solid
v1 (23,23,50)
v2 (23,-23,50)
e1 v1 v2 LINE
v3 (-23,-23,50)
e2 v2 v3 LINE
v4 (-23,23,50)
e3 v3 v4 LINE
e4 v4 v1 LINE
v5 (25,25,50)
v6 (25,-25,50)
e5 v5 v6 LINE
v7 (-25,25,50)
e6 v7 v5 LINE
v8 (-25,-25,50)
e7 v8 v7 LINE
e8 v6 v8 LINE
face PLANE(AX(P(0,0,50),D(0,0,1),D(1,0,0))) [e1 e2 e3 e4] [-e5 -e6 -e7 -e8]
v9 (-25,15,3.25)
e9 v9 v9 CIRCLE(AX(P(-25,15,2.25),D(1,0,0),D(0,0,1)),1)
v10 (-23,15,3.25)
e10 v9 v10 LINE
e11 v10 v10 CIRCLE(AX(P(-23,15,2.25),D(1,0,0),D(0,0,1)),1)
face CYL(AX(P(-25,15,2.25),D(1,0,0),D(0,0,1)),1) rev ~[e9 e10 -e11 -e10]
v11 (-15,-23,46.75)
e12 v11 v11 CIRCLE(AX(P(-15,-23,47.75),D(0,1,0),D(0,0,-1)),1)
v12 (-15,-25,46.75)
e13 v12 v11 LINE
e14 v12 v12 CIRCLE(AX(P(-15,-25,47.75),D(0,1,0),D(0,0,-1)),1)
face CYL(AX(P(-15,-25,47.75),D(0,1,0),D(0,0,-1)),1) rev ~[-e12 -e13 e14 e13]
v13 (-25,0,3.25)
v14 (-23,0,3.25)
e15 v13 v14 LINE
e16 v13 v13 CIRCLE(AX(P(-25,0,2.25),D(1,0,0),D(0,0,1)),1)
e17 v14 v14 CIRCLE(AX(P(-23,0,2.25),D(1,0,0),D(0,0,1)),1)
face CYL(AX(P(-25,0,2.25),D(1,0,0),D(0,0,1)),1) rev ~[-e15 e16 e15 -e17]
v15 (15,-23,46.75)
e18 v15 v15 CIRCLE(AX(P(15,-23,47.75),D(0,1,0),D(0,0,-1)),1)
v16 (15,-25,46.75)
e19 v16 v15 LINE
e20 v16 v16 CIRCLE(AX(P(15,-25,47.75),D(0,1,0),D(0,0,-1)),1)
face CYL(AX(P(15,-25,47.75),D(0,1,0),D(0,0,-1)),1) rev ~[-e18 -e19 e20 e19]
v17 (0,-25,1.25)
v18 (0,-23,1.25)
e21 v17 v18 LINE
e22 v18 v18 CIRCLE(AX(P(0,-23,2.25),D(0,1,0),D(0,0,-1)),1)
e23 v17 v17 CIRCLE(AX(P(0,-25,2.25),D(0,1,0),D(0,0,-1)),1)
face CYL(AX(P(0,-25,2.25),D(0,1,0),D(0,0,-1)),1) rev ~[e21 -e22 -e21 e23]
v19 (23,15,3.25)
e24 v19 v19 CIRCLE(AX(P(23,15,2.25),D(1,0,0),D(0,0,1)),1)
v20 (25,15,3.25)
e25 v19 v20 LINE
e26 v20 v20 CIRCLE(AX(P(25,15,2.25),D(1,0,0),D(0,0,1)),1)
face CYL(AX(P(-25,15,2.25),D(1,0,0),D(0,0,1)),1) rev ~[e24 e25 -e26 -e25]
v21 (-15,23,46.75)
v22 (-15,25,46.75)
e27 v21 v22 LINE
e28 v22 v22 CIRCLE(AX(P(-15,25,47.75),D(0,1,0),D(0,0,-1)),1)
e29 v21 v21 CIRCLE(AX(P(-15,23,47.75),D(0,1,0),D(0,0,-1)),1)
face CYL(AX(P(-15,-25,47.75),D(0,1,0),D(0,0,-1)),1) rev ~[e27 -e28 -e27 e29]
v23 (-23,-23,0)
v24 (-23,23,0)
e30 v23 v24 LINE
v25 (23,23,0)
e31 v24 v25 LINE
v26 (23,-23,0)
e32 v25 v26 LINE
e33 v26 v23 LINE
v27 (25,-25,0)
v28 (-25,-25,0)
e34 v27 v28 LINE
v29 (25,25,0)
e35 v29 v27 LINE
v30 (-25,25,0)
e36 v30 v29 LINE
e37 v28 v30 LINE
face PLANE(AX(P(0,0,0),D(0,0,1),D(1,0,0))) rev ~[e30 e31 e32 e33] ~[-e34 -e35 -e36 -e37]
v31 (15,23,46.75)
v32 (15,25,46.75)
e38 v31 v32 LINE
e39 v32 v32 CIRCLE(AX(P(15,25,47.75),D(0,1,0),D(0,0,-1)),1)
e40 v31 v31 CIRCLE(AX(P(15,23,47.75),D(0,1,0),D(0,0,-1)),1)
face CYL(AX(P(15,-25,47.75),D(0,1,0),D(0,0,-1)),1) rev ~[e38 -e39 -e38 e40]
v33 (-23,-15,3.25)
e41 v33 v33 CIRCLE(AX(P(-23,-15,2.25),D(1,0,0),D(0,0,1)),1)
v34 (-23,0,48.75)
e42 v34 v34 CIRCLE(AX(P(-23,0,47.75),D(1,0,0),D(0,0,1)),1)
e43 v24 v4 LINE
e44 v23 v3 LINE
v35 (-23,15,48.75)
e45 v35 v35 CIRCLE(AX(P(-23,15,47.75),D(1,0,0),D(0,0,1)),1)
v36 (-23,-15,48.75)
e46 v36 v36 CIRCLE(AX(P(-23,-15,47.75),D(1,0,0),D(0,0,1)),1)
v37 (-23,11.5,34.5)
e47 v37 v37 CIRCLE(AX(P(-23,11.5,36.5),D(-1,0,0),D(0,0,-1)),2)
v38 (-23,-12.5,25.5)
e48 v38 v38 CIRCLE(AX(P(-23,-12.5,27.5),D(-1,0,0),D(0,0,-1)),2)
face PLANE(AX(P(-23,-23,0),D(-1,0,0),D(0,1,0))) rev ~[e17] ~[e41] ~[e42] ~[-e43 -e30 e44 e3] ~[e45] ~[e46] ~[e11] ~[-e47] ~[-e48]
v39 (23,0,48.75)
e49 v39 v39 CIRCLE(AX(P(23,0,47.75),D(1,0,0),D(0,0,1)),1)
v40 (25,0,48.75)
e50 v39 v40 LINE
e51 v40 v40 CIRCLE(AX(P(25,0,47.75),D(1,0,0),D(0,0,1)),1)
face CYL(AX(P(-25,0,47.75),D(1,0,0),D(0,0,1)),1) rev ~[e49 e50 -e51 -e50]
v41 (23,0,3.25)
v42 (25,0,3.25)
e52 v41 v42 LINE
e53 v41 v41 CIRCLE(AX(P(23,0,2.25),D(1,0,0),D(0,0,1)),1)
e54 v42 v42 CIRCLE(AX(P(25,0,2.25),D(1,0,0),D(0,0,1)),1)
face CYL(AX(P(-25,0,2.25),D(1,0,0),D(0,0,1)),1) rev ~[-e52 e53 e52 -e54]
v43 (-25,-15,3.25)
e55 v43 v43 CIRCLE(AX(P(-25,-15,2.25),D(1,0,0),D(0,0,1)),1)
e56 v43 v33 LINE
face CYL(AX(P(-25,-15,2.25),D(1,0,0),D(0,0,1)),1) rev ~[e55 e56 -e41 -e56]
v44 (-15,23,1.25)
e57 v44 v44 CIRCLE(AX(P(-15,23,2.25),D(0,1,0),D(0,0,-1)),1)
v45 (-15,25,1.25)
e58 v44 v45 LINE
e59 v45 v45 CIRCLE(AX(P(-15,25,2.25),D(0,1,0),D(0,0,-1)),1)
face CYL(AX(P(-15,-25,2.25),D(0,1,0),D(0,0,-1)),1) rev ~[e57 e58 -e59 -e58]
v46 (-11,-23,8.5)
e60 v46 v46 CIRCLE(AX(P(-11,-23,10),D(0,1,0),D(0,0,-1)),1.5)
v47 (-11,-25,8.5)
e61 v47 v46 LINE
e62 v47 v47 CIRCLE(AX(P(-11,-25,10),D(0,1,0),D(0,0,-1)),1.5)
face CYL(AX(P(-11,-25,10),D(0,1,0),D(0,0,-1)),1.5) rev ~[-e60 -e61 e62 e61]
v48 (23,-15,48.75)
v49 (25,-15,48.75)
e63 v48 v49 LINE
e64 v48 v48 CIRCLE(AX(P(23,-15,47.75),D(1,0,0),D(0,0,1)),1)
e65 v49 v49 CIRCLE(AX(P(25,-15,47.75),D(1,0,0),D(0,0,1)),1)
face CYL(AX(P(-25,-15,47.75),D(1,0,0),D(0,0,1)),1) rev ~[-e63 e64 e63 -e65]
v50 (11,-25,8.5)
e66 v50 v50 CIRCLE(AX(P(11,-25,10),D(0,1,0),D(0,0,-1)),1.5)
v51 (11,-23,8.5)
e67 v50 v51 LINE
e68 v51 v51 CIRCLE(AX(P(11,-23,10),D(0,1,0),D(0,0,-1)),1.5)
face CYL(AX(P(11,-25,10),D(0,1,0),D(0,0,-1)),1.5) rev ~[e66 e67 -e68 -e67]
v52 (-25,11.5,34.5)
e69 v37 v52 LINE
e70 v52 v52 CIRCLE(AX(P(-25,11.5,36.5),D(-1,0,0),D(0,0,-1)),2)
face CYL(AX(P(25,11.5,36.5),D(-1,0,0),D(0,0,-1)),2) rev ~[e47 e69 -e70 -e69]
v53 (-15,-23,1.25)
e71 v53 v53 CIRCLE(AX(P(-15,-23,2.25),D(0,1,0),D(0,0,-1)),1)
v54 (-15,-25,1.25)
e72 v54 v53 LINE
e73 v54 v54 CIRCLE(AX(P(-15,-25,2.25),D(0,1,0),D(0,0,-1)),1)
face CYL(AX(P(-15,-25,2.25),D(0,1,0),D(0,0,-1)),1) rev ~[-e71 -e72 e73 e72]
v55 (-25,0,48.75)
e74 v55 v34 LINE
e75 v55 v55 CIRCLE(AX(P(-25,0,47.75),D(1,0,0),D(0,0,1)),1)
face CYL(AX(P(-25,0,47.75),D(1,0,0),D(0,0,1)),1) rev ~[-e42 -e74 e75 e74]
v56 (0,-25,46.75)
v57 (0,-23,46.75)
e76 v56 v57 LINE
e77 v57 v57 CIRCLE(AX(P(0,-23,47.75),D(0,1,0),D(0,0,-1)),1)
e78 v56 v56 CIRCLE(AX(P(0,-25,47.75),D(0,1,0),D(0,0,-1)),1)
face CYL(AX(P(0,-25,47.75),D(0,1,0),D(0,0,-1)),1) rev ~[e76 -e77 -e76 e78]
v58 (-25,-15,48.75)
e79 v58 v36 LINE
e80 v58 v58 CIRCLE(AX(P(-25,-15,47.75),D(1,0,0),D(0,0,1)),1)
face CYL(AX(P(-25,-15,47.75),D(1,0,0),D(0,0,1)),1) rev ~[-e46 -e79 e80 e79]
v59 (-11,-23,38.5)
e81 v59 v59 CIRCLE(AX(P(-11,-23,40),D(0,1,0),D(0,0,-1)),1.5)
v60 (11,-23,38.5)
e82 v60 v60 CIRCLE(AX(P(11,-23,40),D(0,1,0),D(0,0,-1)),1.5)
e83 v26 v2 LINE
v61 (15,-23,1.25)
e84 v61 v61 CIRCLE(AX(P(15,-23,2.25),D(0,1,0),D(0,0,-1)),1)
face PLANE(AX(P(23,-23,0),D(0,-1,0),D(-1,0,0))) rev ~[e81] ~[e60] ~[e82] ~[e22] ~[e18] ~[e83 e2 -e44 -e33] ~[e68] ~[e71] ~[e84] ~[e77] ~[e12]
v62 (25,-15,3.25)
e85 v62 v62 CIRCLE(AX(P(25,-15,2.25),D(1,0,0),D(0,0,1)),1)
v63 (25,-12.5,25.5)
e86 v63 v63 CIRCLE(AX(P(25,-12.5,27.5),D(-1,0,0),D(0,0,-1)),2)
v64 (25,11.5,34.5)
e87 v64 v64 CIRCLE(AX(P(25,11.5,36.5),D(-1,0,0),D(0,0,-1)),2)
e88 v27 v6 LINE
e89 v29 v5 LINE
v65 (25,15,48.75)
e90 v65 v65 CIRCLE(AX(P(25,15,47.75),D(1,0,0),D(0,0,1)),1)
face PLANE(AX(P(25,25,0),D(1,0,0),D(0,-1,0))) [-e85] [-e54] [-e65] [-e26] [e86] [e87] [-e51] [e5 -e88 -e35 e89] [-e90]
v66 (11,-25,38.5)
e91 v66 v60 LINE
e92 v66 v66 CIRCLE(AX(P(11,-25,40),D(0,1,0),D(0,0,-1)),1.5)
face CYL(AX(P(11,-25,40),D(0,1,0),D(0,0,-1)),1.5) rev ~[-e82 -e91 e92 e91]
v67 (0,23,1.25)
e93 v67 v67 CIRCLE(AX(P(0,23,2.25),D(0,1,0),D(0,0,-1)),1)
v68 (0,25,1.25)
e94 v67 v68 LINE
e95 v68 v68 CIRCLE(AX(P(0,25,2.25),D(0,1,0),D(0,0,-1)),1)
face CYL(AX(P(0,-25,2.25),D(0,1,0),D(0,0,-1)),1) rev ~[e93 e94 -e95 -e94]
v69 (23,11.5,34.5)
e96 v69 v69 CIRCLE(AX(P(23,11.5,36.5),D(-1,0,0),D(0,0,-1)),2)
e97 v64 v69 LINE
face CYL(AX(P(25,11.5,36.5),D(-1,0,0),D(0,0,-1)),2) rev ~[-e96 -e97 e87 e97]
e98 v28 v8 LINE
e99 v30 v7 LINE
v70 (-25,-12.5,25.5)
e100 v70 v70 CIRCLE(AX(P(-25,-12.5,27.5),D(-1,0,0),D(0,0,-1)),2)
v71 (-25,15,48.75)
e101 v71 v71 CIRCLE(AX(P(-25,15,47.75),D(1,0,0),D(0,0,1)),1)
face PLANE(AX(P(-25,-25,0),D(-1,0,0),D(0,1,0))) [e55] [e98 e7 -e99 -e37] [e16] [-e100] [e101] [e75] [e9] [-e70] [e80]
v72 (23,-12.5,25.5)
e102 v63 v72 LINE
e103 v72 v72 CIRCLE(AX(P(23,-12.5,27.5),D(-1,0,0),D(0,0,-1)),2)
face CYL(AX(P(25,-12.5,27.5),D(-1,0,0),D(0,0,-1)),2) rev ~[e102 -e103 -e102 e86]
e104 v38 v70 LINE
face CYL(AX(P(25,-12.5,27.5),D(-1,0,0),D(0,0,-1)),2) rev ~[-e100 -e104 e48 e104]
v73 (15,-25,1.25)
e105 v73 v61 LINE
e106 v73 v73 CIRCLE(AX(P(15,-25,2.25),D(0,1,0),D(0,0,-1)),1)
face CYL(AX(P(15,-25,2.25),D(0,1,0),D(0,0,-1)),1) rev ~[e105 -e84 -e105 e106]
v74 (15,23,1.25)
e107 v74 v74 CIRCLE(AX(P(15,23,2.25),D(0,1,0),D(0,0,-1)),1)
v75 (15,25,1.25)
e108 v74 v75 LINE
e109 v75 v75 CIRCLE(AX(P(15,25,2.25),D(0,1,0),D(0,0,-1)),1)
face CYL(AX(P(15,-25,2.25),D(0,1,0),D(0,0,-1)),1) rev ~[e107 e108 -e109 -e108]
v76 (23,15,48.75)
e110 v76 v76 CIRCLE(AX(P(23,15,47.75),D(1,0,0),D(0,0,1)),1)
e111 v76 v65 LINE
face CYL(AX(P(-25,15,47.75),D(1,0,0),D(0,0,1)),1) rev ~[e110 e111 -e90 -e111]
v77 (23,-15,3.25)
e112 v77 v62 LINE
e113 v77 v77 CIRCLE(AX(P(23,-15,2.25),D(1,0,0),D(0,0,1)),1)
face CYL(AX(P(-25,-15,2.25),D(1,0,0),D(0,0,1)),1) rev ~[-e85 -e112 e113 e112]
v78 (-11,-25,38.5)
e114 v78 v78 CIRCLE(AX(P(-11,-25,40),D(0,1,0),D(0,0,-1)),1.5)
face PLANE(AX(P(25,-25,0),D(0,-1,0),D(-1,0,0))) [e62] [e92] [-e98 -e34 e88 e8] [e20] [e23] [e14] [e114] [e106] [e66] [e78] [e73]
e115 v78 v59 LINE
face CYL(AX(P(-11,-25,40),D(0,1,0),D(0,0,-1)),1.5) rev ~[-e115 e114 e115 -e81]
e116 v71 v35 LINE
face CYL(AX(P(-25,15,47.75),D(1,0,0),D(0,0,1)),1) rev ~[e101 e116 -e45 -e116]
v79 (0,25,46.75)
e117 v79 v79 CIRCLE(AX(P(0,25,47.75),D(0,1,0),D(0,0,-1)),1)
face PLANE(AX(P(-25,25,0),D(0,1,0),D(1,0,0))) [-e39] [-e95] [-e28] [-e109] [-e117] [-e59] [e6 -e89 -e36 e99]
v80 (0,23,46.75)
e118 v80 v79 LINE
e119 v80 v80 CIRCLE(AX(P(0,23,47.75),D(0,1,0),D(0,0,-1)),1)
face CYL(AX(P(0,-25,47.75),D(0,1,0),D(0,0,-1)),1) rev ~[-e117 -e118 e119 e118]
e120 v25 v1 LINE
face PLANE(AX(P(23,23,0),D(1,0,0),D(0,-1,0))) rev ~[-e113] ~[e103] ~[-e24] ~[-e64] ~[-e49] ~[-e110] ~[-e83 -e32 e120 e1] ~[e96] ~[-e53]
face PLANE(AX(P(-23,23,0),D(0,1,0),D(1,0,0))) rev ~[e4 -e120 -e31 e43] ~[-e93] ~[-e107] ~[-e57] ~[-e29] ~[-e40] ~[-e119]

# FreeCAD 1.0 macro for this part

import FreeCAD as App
import Part
import Sketcher
from FreeCAD import Vector


def add_polygon(sketch, points):
    """Adds a closed chain of lines whose ends are joined by coincident constraints."""
    first, n = sketch.GeometryCount, len(points)
    for a, b in zip(points, points[1:] + points[:1]):
        sketch.addGeometry(Part.LineSegment(App.Vector(*a, 0), App.Vector(*b, 0)), False)
    for i in range(n):
        sketch.addConstraint(Sketcher.Constraint("Coincident", first + i, 2, first + (i + 1) % n, 1))

doc = App.newDocument("Part")
body = doc.addObject("PartDesign::Body", "Body")

sketch1 = body.newObject("Sketcher::SketchObject", "Sketch")
sketch1.AttachmentSupport = (doc.getObject("XY_Plane"), [""])
sketch1.MapMode = "FlatFace"
add_polygon(sketch1, [(25, 25), (-25, 25), (-25, -25), (25, -25)])
add_polygon(sketch1, [(-23, -23), (-23, 23), (23, 23), (23, -23)])
sketch1.addConstraint(Sketcher.Constraint("Horizontal", 0))
sketch1.addConstraint(Sketcher.Constraint("Vertical", 1))
sketch1.addConstraint(Sketcher.Constraint("Horizontal", 2))
sketch1.addConstraint(Sketcher.Constraint("Vertical", 3))
sketch1.addConstraint(Sketcher.Constraint("Vertical", 4))
sketch1.addConstraint(Sketcher.Constraint("Horizontal", 5))
sketch1.addConstraint(Sketcher.Constraint("Vertical", 6))
sketch1.addConstraint(Sketcher.Constraint("Horizontal", 7))
sketch1.addConstraint(Sketcher.Constraint("Symmetric", 0, 2, 2, 2, -1, 1))
sketch1.addConstraint(Sketcher.Constraint("Symmetric", 4, 2, 6, 2, -1, 1))
sketch1.addConstraint(Sketcher.Constraint("Equal", 2, 1))
sketch1.addConstraint(Sketcher.Constraint("Equal", 7, 4))
sketch1.addConstraint(Sketcher.Constraint("DistanceX", 0, 2, 0, 1, 50.0))
sketch1.addConstraint(Sketcher.Constraint("DistanceX", 5, 1, 5, 2, 46.0))
pad1 = body.newObject("PartDesign::Pad", "Pad")
pad1.Profile = sketch1
pad1.Length = 50

sketch2 = body.newObject("Sketcher::SketchObject", "Sketch001")
sketch2.AttachmentSupport = (doc.getObject("YZ_Plane"), [""])
sketch2.MapMode = "FlatFace"
sketch2.AttachmentOffset = App.Placement(Vector(0, 0, 25), App.Rotation())
sketch2.addGeometry(Part.Circle(Vector(-12.5, 27.5, 0), Vector(0, 0, 1), 2), False)
sketch2.addGeometry(Part.Circle(Vector(11.5, 36.5, 0), Vector(0, 0, 1), 2), False)
sketch2.addConstraint(Sketcher.Constraint("Equal", 0, 1))
sketch2.addConstraint(Sketcher.Constraint("Diameter", 0, 4.0))
sketch2.addConstraint(Sketcher.Constraint("DistanceX", 0, 3, 1, 3, 24.0))
sketch2.addConstraint(Sketcher.Constraint("DistanceY", 0, 3, 1, 3, 9.0))
sketch2.addConstraint(Sketcher.Constraint("DistanceX", 0, 3, -1, 1, 12.5))
sketch2.addConstraint(Sketcher.Constraint("DistanceY", -1, 1, 0, 3, 27.5))
doc.recompute()
hole = body.newObject("PartDesign::Hole", "Hole")
hole.Profile = sketch2
hole.ThreadType = "None"
hole.Diameter = 4
hole.DepthType = "ThroughAll"

sketch3 = body.newObject("Sketcher::SketchObject", "Sketch002")
sketch3.AttachmentSupport = (doc.getObject("XZ_Plane"), [""])
sketch3.MapMode = "FlatFace"
sketch3.AttachmentOffset = App.Placement(Vector(0, 0, 25), App.Rotation())
sketch3.addGeometry(Part.Circle(Vector(-15, 47.8, 0), Vector(0, 0, 1), 1), False)
sketch3.addGeometry(Part.Circle(Vector(-15, 2.2, 0), Vector(0, 0, 1), 1), False)
sketch3.addGeometry(Part.Circle(Vector(0, 47.8, 0), Vector(0, 0, 1), 1), False)
sketch3.addGeometry(Part.Circle(Vector(0, 2.2, 0), Vector(0, 0, 1), 1), False)
sketch3.addGeometry(Part.Circle(Vector(15, 2.2, 0), Vector(0, 0, 1), 1), False)
sketch3.addGeometry(Part.Circle(Vector(15, 47.8, 0), Vector(0, 0, 1), 1), False)
sketch3.addConstraint(Sketcher.Constraint("Equal", 0, 1))
sketch3.addConstraint(Sketcher.Constraint("Equal", 1, 2))
sketch3.addConstraint(Sketcher.Constraint("Equal", 2, 3))
sketch3.addConstraint(Sketcher.Constraint("Equal", 3, 4))
sketch3.addConstraint(Sketcher.Constraint("Equal", 4, 5))
sketch3.addConstraint(Sketcher.Constraint("Symmetric", 1, 3, 4, 3, -2))
sketch3.addConstraint(Sketcher.Constraint("Symmetric", 0, 3, 5, 3, -2))
sketch3.addConstraint(Sketcher.Constraint("PointOnObject", 2, 3, -2))
sketch3.addConstraint(Sketcher.Constraint("PointOnObject", 3, 3, -2))
sketch3.addConstraint(Sketcher.Constraint("Horizontal", 0, 3, 2, 3))
sketch3.addConstraint(Sketcher.Constraint("Horizontal", 1, 3, 3, 3))
sketch3.addConstraint(Sketcher.Constraint("Vertical", 0, 3, 1, 3))
sketch3.addConstraint(Sketcher.Constraint("Diameter", 0, 2.0))
sketch3.addConstraint(Sketcher.Constraint("DistanceX", 0, 3, -1, 1, 15.0))
sketch3.addConstraint(Sketcher.Constraint("DistanceY", 1, 3, 0, 3, 45.5))
sketch3.addConstraint(Sketcher.Constraint("DistanceY", -1, 1, 0, 3, 47.75))
doc.recompute()
hole2 = body.newObject("PartDesign::Hole", "Hole001")
hole2.Profile = sketch3
hole2.ThreadType = "None"
hole2.Diameter = 2
hole2.DepthType = "ThroughAll"

sketch4 = body.newObject("Sketcher::SketchObject", "Sketch003")
sketch4.AttachmentSupport = (doc.getObject("YZ_Plane"), [""])
sketch4.MapMode = "FlatFace"
sketch4.AttachmentOffset = App.Placement(Vector(0, 0, -25), App.Rotation())
sketch4.addGeometry(Part.Circle(Vector(15, 2.2, 0), Vector(0, 0, 1), 1), False)
sketch4.addGeometry(Part.Circle(Vector(0, 2.2, 0), Vector(0, 0, 1), 1), False)
sketch4.addGeometry(Part.Circle(Vector(-15, 2.2, 0), Vector(0, 0, 1), 1), False)
sketch4.addGeometry(Part.Circle(Vector(-15, 47.8, 0), Vector(0, 0, 1), 1), False)
sketch4.addGeometry(Part.Circle(Vector(0, 47.8, 0), Vector(0, 0, 1), 1), False)
sketch4.addGeometry(Part.Circle(Vector(15, 47.8, 0), Vector(0, 0, 1), 1), False)
sketch4.addConstraint(Sketcher.Constraint("Equal", 0, 1))
sketch4.addConstraint(Sketcher.Constraint("Equal", 1, 2))
sketch4.addConstraint(Sketcher.Constraint("Equal", 2, 3))
sketch4.addConstraint(Sketcher.Constraint("Equal", 3, 4))
sketch4.addConstraint(Sketcher.Constraint("Equal", 4, 5))
sketch4.addConstraint(Sketcher.Constraint("Symmetric", 0, 3, 2, 3, -2))
sketch4.addConstraint(Sketcher.Constraint("Symmetric", 3, 3, 5, 3, -2))
sketch4.addConstraint(Sketcher.Constraint("PointOnObject", 1, 3, -2))
sketch4.addConstraint(Sketcher.Constraint("PointOnObject", 4, 3, -2))
sketch4.addConstraint(Sketcher.Constraint("Horizontal", 0, 3, 1, 3))
sketch4.addConstraint(Sketcher.Constraint("Horizontal", 3, 3, 4, 3))
sketch4.addConstraint(Sketcher.Constraint("Vertical", 2, 3, 3, 3))
sketch4.addConstraint(Sketcher.Constraint("Diameter", 0, 2.0))
sketch4.addConstraint(Sketcher.Constraint("DistanceX", -1, 1, 0, 3, 15.0))
sketch4.addConstraint(Sketcher.Constraint("DistanceY", 2, 3, 3, 3, 45.5))
sketch4.addConstraint(Sketcher.Constraint("DistanceY", -1, 1, 0, 3, 2.25))
doc.recompute()
hole3 = body.newObject("PartDesign::Hole", "Hole002")
hole3.Profile = sketch4
hole3.ThreadType = "None"
hole3.Diameter = 2
hole3.DepthType = "ThroughAll"
hole3.Reversed = True

sketch5 = body.newObject("Sketcher::SketchObject", "Sketch004")
sketch5.AttachmentSupport = (doc.getObject("XZ_Plane"), [""])
sketch5.MapMode = "FlatFace"
sketch5.AttachmentOffset = App.Placement(Vector(0, 0, 25), App.Rotation())
sketch5.addGeometry(Part.Circle(Vector(-11, 40, 0), Vector(0, 0, 1), 1.5), False)
sketch5.addGeometry(Part.Circle(Vector(-11, 10, 0), Vector(0, 0, 1), 1.5), False)
sketch5.addGeometry(Part.Circle(Vector(11, 40, 0), Vector(0, 0, 1), 1.5), False)
sketch5.addGeometry(Part.Circle(Vector(11, 10, 0), Vector(0, 0, 1), 1.5), False)
sketch5.addConstraint(Sketcher.Constraint("Equal", 0, 1))
sketch5.addConstraint(Sketcher.Constraint("Equal", 1, 2))
sketch5.addConstraint(Sketcher.Constraint("Equal", 2, 3))
sketch5.addConstraint(Sketcher.Constraint("Symmetric", 0, 3, 2, 3, -2))
sketch5.addConstraint(Sketcher.Constraint("Symmetric", 1, 3, 3, 3, -2))
sketch5.addConstraint(Sketcher.Constraint("Vertical", 0, 3, 1, 3))
sketch5.addConstraint(Sketcher.Constraint("Diameter", 0, 3.0))
sketch5.addConstraint(Sketcher.Constraint("DistanceX", 0, 3, -1, 1, 11.0))
sketch5.addConstraint(Sketcher.Constraint("DistanceY", -1, 1, 0, 3, 40.0))
sketch5.addConstraint(Sketcher.Constraint("DistanceY", -1, 1, 1, 3, 10.0))
doc.recompute()
hole4 = body.newObject("PartDesign::Hole", "Hole003")
hole4.Profile = sketch5
hole4.ThreadType = "None"
hole4.Diameter = 3
hole4.DepthType = "Dimension"
hole4.Depth = 2
hole4.DrillPoint = "Angled"
hole4.DrillPointAngle = 118

doc.recompute()
